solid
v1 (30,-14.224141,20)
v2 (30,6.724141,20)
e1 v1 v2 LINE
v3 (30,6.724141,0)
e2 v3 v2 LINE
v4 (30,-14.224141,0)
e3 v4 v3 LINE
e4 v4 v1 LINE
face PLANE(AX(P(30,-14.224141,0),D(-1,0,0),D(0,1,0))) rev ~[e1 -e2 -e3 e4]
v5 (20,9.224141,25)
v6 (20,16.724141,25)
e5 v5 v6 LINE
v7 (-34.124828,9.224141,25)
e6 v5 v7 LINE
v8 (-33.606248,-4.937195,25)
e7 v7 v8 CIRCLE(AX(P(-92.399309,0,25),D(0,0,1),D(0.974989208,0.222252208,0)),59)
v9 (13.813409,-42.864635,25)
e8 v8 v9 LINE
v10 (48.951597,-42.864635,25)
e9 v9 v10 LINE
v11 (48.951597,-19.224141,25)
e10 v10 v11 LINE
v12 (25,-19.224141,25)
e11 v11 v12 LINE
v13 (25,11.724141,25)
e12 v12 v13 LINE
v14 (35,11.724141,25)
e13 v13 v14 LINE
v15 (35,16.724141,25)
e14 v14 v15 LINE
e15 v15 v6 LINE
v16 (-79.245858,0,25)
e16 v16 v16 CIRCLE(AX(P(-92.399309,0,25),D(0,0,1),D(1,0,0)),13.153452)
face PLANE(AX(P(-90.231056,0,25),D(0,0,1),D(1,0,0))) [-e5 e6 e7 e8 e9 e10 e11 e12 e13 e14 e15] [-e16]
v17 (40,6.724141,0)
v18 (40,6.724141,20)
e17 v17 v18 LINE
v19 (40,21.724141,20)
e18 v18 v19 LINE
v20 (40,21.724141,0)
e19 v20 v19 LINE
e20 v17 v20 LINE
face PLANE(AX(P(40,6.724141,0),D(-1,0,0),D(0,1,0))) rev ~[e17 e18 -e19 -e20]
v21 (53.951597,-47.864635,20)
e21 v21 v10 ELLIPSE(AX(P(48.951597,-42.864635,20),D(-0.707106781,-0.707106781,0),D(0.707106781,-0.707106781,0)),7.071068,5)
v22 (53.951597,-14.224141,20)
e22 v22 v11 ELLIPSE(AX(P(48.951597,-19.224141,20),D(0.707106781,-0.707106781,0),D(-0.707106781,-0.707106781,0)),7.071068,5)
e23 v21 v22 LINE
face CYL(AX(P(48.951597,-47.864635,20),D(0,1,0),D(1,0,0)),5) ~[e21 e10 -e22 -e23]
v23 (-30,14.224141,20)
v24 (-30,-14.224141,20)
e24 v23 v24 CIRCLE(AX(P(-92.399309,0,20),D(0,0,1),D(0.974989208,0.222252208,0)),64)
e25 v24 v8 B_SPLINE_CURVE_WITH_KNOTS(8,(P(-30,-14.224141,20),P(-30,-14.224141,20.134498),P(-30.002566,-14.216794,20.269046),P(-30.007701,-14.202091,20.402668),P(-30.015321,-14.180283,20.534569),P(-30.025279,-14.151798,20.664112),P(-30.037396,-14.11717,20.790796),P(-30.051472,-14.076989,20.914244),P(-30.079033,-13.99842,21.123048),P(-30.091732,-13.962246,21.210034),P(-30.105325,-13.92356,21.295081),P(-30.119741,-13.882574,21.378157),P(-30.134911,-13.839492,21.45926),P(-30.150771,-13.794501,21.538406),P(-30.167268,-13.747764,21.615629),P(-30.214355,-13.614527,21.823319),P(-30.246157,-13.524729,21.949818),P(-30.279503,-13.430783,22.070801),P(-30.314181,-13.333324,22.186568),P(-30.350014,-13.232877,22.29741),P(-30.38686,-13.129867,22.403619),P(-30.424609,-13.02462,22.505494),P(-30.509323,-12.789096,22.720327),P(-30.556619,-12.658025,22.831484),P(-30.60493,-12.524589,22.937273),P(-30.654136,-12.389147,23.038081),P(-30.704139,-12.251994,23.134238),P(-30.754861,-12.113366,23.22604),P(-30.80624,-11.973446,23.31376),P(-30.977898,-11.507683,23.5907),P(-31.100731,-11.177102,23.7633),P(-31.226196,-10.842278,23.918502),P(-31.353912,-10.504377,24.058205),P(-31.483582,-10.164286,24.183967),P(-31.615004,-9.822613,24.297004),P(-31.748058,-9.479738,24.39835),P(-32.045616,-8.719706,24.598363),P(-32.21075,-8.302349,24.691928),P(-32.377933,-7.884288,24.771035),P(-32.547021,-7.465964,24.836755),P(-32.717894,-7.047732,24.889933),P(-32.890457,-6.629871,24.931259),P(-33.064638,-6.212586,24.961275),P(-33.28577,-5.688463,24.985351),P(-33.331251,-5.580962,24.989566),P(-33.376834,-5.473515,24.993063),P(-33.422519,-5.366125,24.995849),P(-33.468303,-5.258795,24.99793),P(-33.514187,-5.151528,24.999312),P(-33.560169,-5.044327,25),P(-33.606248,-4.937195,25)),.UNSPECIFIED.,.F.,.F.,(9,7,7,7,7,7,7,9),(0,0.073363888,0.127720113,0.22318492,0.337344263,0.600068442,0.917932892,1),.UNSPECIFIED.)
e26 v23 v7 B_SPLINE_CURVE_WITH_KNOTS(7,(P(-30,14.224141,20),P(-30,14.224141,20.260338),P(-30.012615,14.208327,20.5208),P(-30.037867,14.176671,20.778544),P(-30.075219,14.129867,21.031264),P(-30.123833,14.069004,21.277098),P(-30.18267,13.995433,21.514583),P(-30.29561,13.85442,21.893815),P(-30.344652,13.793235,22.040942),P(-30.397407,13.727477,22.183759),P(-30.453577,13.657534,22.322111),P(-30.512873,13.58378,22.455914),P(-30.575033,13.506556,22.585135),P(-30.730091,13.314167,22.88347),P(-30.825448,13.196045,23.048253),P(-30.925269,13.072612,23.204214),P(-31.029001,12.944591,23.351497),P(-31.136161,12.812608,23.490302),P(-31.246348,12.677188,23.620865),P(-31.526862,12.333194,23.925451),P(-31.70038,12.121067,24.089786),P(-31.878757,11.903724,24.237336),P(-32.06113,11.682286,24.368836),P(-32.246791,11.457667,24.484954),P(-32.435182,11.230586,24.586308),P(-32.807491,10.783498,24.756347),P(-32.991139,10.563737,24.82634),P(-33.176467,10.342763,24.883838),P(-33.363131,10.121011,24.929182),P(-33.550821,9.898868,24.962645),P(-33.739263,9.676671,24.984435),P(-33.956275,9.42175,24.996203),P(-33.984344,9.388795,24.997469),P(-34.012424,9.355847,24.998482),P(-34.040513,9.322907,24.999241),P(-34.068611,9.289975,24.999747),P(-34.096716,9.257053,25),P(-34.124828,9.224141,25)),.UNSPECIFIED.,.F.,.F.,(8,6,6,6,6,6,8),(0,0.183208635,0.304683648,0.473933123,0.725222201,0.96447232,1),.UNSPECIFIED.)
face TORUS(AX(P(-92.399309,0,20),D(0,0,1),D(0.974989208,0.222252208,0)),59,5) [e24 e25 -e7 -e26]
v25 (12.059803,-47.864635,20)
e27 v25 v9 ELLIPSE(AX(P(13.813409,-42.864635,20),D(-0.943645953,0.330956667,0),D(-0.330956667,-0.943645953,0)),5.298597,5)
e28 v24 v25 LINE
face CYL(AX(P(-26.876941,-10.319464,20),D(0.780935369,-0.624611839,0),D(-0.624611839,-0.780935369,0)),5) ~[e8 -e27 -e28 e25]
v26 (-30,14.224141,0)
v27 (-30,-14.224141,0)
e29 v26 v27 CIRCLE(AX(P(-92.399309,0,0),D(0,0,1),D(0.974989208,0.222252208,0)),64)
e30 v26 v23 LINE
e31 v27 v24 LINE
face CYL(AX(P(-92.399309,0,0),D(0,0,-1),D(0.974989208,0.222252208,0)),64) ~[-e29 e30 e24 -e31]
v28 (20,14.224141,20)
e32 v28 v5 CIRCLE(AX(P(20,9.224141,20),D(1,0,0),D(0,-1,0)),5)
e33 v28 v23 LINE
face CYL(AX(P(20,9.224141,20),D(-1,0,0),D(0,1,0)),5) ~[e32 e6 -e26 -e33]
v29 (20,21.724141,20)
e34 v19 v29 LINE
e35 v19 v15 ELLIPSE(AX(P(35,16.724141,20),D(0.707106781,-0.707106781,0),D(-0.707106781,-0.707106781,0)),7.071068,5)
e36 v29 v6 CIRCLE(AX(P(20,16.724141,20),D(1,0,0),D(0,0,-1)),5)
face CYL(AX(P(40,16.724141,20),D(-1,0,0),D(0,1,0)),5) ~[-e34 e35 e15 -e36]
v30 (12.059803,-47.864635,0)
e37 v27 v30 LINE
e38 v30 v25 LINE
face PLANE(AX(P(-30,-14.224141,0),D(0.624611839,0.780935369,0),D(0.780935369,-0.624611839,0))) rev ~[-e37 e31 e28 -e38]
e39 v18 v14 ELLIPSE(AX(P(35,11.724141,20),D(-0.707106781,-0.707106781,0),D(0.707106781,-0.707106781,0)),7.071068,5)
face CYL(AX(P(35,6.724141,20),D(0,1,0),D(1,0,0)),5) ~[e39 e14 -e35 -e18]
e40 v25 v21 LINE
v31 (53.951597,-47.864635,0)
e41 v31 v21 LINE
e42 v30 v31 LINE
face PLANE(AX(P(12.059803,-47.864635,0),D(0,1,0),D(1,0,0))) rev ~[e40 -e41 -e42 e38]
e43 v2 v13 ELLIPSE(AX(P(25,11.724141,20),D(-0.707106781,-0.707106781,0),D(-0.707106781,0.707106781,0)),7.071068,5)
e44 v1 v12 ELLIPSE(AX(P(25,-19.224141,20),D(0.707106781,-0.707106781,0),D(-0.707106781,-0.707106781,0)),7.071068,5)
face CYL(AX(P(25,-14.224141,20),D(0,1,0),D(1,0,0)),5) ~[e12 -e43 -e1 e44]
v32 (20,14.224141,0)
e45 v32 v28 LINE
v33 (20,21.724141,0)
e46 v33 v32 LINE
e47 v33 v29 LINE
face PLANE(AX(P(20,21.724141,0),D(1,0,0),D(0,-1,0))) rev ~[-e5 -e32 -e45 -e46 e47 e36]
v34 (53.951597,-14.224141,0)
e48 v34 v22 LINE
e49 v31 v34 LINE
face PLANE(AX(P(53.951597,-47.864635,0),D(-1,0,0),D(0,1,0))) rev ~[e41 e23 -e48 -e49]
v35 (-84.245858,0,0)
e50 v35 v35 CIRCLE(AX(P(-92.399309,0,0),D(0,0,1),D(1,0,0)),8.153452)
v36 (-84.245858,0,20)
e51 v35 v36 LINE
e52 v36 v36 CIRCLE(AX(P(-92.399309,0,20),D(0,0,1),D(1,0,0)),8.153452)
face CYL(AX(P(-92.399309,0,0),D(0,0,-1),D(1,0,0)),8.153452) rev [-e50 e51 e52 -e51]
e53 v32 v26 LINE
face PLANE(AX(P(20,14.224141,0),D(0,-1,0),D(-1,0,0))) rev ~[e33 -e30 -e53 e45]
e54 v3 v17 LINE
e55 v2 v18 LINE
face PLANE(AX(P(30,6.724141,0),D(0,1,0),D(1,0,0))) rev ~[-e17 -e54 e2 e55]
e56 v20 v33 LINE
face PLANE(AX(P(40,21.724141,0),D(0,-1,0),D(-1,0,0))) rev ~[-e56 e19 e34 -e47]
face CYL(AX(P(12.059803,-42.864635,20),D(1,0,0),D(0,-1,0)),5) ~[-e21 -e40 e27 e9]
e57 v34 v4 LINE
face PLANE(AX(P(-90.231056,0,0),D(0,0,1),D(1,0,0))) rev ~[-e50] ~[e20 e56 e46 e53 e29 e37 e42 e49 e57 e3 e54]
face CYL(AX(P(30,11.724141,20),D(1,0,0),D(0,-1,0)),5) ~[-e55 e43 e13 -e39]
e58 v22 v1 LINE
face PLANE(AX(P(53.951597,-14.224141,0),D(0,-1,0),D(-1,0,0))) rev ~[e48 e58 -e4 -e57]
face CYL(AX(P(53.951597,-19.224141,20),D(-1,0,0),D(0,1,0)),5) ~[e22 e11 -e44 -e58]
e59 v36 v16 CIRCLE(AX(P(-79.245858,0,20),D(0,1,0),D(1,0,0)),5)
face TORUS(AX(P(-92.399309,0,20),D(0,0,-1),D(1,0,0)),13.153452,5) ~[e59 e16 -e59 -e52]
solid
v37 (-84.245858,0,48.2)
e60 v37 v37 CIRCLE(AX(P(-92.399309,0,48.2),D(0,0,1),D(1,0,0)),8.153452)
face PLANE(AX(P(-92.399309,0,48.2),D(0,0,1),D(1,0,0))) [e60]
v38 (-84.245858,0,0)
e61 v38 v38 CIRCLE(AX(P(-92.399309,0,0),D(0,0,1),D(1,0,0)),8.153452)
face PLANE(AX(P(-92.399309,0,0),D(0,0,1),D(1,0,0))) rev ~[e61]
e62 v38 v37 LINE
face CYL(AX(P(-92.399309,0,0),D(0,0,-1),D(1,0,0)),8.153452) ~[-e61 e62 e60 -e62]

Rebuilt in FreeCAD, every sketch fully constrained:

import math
import FreeCAD as App
import Part
import Sketcher

V = App.Vector
Q = App.Units.Quantity


def edges_at(feature, points):
    """Names of the edges that pass closest to the given points."""
    edges = feature.Shape.Edges
    near = lambda p: min(range(len(edges)), key=lambda i: edges[i].distToShape(Part.Vertex(*p))[0])
    return sorted({f"Edge{near(p) + 1}" for p in points})

doc = App.newDocument("Part")
body = doc.addObject("PartDesign::Body", "Body")

# Sketch on XY plane
sketch1 = body.newObject("Sketcher::SketchObject", "Sketch")
sketch1.AttachmentSupport = (doc.getObject("XY_Plane"), [""])
sketch1.MapMode = "FlatFace"
sketch1.addGeometry([
    Part.ArcOfCircle(Part.Circle(V(-92, 0, 0), V(0, 0, 1), 64), math.radians(13), math.radians(347)),  # 0
    Part.LineSegment(V(-30, -14, 0), V(12, -48, 0)),  # 1
    Part.LineSegment(V(12, -48, 0), V(54, -48, 0)),  # 2
    Part.LineSegment(V(54, -48, 0), V(54, -14, 0)),  # 3
    Part.LineSegment(V(54, -14, 0), V(30, -14, 0)),  # 4
    Part.LineSegment(V(30, -14, 0), V(30, 7, 0)),  # 5
    Part.LineSegment(V(30, 7, 0), V(40, 7, 0)),  # 6
    Part.LineSegment(V(40, 7, 0), V(40, 22, 0)),  # 7
    Part.LineSegment(V(40, 22, 0), V(20, 22, 0)),  # 8
    Part.LineSegment(V(20, 22, 0), V(20, 14, 0)),  # 9
    Part.LineSegment(V(20, 14, 0), V(-30, 14, 0)),  # 10
    Part.Circle(V(-92, 0, 0), V(0, 0, 1), 8),  # 11
], False)
sketch1.addConstraint([
    Sketcher.Constraint("Coincident", 0, 2, 1, 1),
    Sketcher.Constraint("Coincident", 1, 2, 2, 1),
    Sketcher.Constraint("Coincident", 2, 2, 3, 1),
    Sketcher.Constraint("Coincident", 3, 2, 4, 1),
    Sketcher.Constraint("Coincident", 4, 2, 5, 1),
    Sketcher.Constraint("Coincident", 5, 2, 6, 1),
    Sketcher.Constraint("Coincident", 6, 2, 7, 1),
    Sketcher.Constraint("Coincident", 7, 2, 8, 1),
    Sketcher.Constraint("Coincident", 8, 2, 9, 1),
    Sketcher.Constraint("Coincident", 9, 2, 10, 1),
    Sketcher.Constraint("Coincident", 10, 2, 0, 1),
    Sketcher.Constraint("Horizontal", 2),
    Sketcher.Constraint("Vertical", 3),
    Sketcher.Constraint("Horizontal", 4),
    Sketcher.Constraint("Vertical", 5),
    Sketcher.Constraint("Horizontal", 6),
    Sketcher.Constraint("Vertical", 7),
    Sketcher.Constraint("Horizontal", 8),
    Sketcher.Constraint("Vertical", 9),
    Sketcher.Constraint("Horizontal", 10),
    Sketcher.Constraint("Coincident", 11, 3, 0, 3),
    Sketcher.Constraint("Symmetric", 4, 2, 10, 2, -1, 1),
    Sketcher.Constraint("Symmetric", 0, 2, 4, 2, -2),
    Sketcher.Constraint("Radius", 0, Q("64 mm")),
    Sketcher.Constraint("DistanceX", 6, 1, 6, 2, Q("10 mm")),
    Sketcher.Constraint("DistanceX", 8, 2, 8, 1, Q("20 mm")),
    Sketcher.Constraint("DistanceX", 10, 2, 10, 1, Q("50 mm")),
    Sketcher.Constraint("DistanceY", 7, 1, 7, 2, Q("15 mm")),
    Sketcher.Constraint("DistanceY", 9, 2, 9, 1, Q("7.5 mm")),
    Sketcher.Constraint("Diameter", 11, Q("16.306903 mm")),
    Sketcher.Constraint("Distance", 1, Q("53.858238 mm")),
    Sketcher.Constraint("DistanceX", 2, 1, 2, 2, Q("41.891794 mm")),
    Sketcher.Constraint("DistanceX", 4, 2, 4, 1, Q("23.951597 mm")),
    Sketcher.Constraint("DistanceY", 5, 1, 5, 2, Q("20.948283 mm")),
])
pad1 = body.newObject("PartDesign::Pad", "Pad")
pad1.Profile = sketch1
pad1.Length = 25
doc.recompute()

fillet = body.newObject("PartDesign::Fillet", "Fillet")
fillet.Base = (pad1, edges_at(pad1, [
    (-8.97, -31.044, 25),
    (33.006, -47.865, 25),
    (41.976, -14.224, 25),
    (53.952, -31.044, 25),
    (-156.399, 0, 25),
    (30, -3.75, 25),
    (35, 6.724, 25),
    (30, 21.724, 25),
    (40, 14.224, 25),
    (-5, 14.224, 25),
    (-100.553, 0, 25),
]))
fillet.Radius = 5
body2 = doc.addObject("PartDesign::Body", "Body001")

# Sketch on XY plane
sketch2 = body2.newObject("Sketcher::SketchObject", "Sketch001")
sketch2.AttachmentSupport = (doc.getObject("XY_Plane001"), [""])
sketch2.MapMode = "FlatFace"
sketch2.addGeometry(Part.Circle(V(-92, 0, 0), V(0, 0, 1), 8), False)
sketch2.addConstraint([
    Sketcher.Constraint("PointOnObject", 0, 3, -1),
    Sketcher.Constraint("Diameter", 0, Q("16.306903 mm")),
    Sketcher.Constraint("DistanceX", 0, 3, -1, 1, Q("92.399309 mm")),
])
pad2 = body2.newObject("PartDesign::Pad", "Pad001")
pad2.Profile = sketch2
pad2.Length = 48.2

doc.recompute()
